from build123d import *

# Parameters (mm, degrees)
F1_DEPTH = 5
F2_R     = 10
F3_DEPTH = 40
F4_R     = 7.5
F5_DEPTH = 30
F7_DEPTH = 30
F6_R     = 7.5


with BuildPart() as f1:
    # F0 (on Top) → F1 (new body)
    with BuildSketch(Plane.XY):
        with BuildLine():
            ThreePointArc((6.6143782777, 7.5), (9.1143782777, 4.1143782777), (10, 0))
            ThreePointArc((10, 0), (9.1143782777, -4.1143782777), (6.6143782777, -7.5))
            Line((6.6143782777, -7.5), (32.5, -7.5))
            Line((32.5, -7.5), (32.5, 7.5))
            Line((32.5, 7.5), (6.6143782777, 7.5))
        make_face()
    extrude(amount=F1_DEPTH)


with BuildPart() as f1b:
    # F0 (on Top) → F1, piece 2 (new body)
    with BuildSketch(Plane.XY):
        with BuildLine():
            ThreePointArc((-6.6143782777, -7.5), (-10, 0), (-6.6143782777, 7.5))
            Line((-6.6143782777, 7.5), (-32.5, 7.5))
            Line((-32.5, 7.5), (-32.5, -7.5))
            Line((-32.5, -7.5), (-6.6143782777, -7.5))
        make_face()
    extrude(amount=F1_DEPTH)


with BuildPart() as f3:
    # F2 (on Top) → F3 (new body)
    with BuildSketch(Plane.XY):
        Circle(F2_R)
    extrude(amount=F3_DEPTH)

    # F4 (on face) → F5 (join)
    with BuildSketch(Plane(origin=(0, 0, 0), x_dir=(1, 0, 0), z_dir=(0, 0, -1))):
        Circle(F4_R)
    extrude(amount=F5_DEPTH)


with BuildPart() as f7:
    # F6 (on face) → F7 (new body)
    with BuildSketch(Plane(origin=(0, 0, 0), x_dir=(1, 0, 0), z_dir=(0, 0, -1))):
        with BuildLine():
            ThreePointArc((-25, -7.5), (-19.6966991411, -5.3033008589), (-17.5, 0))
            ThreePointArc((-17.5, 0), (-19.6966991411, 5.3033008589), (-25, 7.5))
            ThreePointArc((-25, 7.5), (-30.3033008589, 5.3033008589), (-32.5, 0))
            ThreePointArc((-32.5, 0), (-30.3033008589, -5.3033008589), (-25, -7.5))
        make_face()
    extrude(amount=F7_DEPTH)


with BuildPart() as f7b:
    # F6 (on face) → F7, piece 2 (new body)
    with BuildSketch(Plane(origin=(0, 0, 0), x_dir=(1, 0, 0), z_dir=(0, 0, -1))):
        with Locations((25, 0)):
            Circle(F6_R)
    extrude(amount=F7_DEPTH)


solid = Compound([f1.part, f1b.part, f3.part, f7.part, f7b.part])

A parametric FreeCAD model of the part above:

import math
import FreeCAD as App
import Part
import Sketcher
from FreeCAD import Vector
Q = App.Units.Quantity

doc = App.newDocument("Part")
body = doc.addObject("PartDesign::Body", "Body")

sketch1 = doc.addObject("Sketcher::SketchObject", "Sketch")
body.addObject(sketch1)
sketch1.AttachmentSupport = (doc.XY_Plane, [""])
sketch1.MapMode = "FlatFace"
sketch1.addGeometry([
    Part.ArcOfCircle(Part.Circle(Vector(0, 0, 0), Vector(0, 0, 1), 10), math.radians(0), math.radians(48.590378)),
    Part.ArcOfCircle(Part.Circle(Vector(0, 0, 0), Vector(0, 0, 1), 10), math.radians(-48.590378), math.radians(0)),
    Part.LineSegment(Vector(6.614378, -7.5, 0), Vector(32.5, -7.5, 0)),
    Part.LineSegment(Vector(32.5, -7.5, 0), Vector(32.5, 7.5, 0)),
    Part.LineSegment(Vector(32.5, 7.5, 0), Vector(6.614378, 7.5, 0)),
], False)
sketch1.addConstraint([
    Sketcher.Constraint("Tangent", 0, 1, 1, 2),
    Sketcher.Constraint("Coincident", 1, 1, 2, 1),
    Sketcher.Constraint("Coincident", 2, 2, 3, 1),
    Sketcher.Constraint("Coincident", 3, 2, 4, 1),
    Sketcher.Constraint("Coincident", 4, 2, 0, 2),
    Sketcher.Constraint("Horizontal", 2),
    Sketcher.Constraint("Vertical", 3),
    Sketcher.Constraint("Horizontal", 4),
    Sketcher.Constraint("Coincident", 0, 3, -1, 1),
    Sketcher.Constraint("Equal", 0, 1),
    Sketcher.Constraint("PointOnObject", 0, 1, -1),
    Sketcher.Constraint("Vertical", 1, 1, 4, 2),
    Sketcher.Constraint("Radius", 0, Q("10 mm")),
    Sketcher.Constraint("DistanceY", 3, 1, 3, 2, Q("15 mm")),
    Sketcher.Constraint("DistanceX", -1, 1, 2, 2, Q("32.5 mm")),
])
pad1 = doc.addObject("PartDesign::Pad", "Pad")
body.addObject(pad1)
pad1.Profile = sketch1
pad1.Length = 5
body2 = doc.addObject("PartDesign::Body", "Body001")

sketch2 = doc.addObject("Sketcher::SketchObject", "Sketch001")
body2.addObject(sketch2)
sketch2.AttachmentSupport = (doc.getObject("XY_Plane001"), [""])
sketch2.MapMode = "FlatFace"
sketch2.addGeometry([
    Part.ArcOfCircle(Part.Circle(Vector(0, 0, 0), Vector(0, 0, 1), 10), math.radians(131.409622), math.radians(228.590378)),
    Part.LineSegment(Vector(-6.614378, 7.5, 0), Vector(-32.5, 7.5, 0)),
    Part.LineSegment(Vector(-32.5, 7.5, 0), Vector(-32.5, -7.5, 0)),
    Part.LineSegment(Vector(-32.5, -7.5, 0), Vector(-6.614378, -7.5, 0)),
], False)
sketch2.addConstraint([
    Sketcher.Constraint("Coincident", 0, 1, 1, 1),
    Sketcher.Constraint("Coincident", 1, 2, 2, 1),
    Sketcher.Constraint("Coincident", 2, 2, 3, 1),
    Sketcher.Constraint("Coincident", 3, 2, 0, 2),
    Sketcher.Constraint("Horizontal", 1),
    Sketcher.Constraint("Vertical", 2),
    Sketcher.Constraint("Horizontal", 3),
    Sketcher.Constraint("Coincident", 0, 3, -1, 1),
    Sketcher.Constraint("Vertical", 0, 1, 3, 2),
    Sketcher.Constraint("Radius", 0, Q("10 mm")),
    Sketcher.Constraint("DistanceY", 2, 2, 2, 1, Q("15 mm")),
    Sketcher.Constraint("DistanceX", 1, 2, -1, 1, Q("32.5 mm")),
])
pad2 = doc.addObject("PartDesign::Pad", "Pad001")
body2.addObject(pad2)
pad2.Profile = sketch2
pad2.Length = 5
body3 = doc.addObject("PartDesign::Body", "Body002")

sketch3 = doc.addObject("Sketcher::SketchObject", "Sketch002")
body3.addObject(sketch3)
sketch3.AttachmentSupport = (doc.getObject("XY_Plane002"), [""])
sketch3.MapMode = "FlatFace"
sketch3.addGeometry(Part.Circle(Vector(0, 0, 0), Vector(0, 0, 1), 10), False)
sketch3.addConstraint([
    Sketcher.Constraint("Coincident", 0, 3, -1, 1),
    Sketcher.Constraint("Diameter", 0, Q("20 mm")),
])
pad3 = doc.addObject("PartDesign::Pad", "Pad002")
body3.addObject(pad3)
pad3.Profile = sketch3
pad3.Length = 40

sketch4 = doc.addObject("Sketcher::SketchObject", "Sketch003")
body3.addObject(sketch4)
sketch4.AttachmentSupport = (doc.getObject("XY_Plane002"), [""])
sketch4.MapMode = "FlatFace"
sketch4.addGeometry(Part.Circle(Vector(0, 0, 0), Vector(0, 0, 1), 7.5), False)
sketch4.addConstraint([
    Sketcher.Constraint("Coincident", 0, 3, -1, 1),
    Sketcher.Constraint("Diameter", 0, Q("15 mm")),
])
pad4 = doc.addObject("PartDesign::Pad", "Pad003")
body3.addObject(pad4)
pad4.Profile = sketch4
pad4.Length = 30
pad4.Reversed = True
body4 = doc.addObject("PartDesign::Body", "Body003")

sketch5 = doc.addObject("Sketcher::SketchObject", "Sketch004")
body4.addObject(sketch5)
sketch5.AttachmentSupport = (doc.getObject("XY_Plane003"), [""])
sketch5.MapMode = "FlatFace"
sketch5.addGeometry(Part.Circle(Vector(-25, 0, 0), Vector(0, 0, 1), 7.5), False)
sketch5.addConstraint([
    Sketcher.Constraint("PointOnObject", 0, 3, -1),
    Sketcher.Constraint("Diameter", 0, Q("15 mm")),
    Sketcher.Constraint("DistanceX", 0, 3, -1, 1, Q("25 mm")),
])
pad5 = doc.addObject("PartDesign::Pad", "Pad004")
body4.addObject(pad5)
pad5.Profile = sketch5
pad5.Length = 30
pad5.Reversed = True
body5 = doc.addObject("PartDesign::Body", "Body004")

sketch6 = doc.addObject("Sketcher::SketchObject", "Sketch005")
body5.addObject(sketch6)
sketch6.AttachmentSupport = (doc.getObject("XY_Plane004"), [""])
sketch6.MapMode = "FlatFace"
sketch6.addGeometry(Part.Circle(Vector(25, 0, 0), Vector(0, 0, 1), 7.5), False)
sketch6.addConstraint([
    Sketcher.Constraint("PointOnObject", 0, 3, -1),
    Sketcher.Constraint("Diameter", 0, Q("15 mm")),
    Sketcher.Constraint("DistanceX", -1, 1, 0, 3, Q("25 mm")),
])
pad6 = doc.addObject("PartDesign::Pad", "Pad005")
body5.addObject(pad6)
pad6.Profile = sketch6
pad6.Length = 30
pad6.Reversed = True

doc.recompute()
